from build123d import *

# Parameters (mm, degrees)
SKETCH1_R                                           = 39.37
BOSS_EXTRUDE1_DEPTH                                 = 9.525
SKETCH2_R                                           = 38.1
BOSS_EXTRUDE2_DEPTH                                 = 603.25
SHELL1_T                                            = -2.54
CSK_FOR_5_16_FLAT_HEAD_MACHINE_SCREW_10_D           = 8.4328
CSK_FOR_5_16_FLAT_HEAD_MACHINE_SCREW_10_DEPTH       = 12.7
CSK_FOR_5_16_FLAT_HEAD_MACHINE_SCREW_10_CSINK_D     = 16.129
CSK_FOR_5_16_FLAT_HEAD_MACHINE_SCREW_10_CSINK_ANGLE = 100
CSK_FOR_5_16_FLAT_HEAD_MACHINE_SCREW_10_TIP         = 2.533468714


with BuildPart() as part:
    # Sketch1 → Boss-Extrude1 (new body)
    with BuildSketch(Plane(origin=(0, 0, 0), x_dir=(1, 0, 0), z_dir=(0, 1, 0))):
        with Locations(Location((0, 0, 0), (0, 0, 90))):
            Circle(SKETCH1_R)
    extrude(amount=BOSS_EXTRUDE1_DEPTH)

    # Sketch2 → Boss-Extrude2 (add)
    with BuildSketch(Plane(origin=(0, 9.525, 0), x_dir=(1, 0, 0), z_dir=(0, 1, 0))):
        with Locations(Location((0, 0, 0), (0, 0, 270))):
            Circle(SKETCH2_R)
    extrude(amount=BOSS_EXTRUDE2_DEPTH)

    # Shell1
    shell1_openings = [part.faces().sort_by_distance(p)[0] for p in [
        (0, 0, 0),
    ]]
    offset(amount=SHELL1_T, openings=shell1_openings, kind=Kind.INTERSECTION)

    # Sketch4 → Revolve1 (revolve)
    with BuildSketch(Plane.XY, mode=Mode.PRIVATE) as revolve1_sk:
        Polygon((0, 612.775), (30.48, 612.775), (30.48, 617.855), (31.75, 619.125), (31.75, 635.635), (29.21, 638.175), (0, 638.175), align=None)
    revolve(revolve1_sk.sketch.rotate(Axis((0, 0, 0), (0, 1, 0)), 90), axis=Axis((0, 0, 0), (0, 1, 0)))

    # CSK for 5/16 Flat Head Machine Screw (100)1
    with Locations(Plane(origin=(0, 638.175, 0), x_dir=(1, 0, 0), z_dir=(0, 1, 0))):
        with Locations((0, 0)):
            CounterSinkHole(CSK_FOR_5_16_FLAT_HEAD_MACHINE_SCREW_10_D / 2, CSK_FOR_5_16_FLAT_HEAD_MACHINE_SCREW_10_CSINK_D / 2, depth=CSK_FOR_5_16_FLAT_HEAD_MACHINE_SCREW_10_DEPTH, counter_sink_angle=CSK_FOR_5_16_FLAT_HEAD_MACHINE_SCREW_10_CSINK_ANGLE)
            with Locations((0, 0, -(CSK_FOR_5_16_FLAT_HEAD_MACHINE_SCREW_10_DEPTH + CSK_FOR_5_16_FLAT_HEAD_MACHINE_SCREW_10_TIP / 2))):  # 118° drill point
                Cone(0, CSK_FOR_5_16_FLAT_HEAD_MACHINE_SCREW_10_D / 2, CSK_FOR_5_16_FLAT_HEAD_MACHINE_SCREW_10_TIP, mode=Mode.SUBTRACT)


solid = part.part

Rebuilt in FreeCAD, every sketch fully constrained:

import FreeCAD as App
import Part
import Sketcher
from FreeCAD import Vector
Q = App.Units.Quantity


def faces_at(feature, points):
    """Names of the faces that lie closest to the given points."""
    faces = feature.Shape.Faces
    near = lambda p: min(range(len(faces)), key=lambda i: faces[i].distToShape(Part.Vertex(*p))[0])
    return sorted({f"Face{near(p) + 1}" for p in points})


def add_polygon(sketch, points):
    """Adds a closed chain of lines whose ends are joined by coincident constraints."""
    first, n = sketch.GeometryCount, len(points)
    for a, b in zip(points, points[1:] + points[:1]):
        sketch.addGeometry(Part.LineSegment(App.Vector(*a, 0), App.Vector(*b, 0)), False)
    for i in range(n):
        sketch.addConstraint(Sketcher.Constraint("Coincident", first + i, 2, first + (i + 1) % n, 1))

doc = App.newDocument("Part")
body = doc.addObject("PartDesign::Body", "Body")

# Sketch on XZ plane
sketch1 = doc.addObject("Sketcher::SketchObject", "Sketch")
body.addObject(sketch1)
sketch1.AttachmentSupport = (doc.XZ_Plane, [""])
sketch1.MapMode = "FlatFace"
sketch1.addGeometry(Part.Circle(Vector(0, 0, 0), Vector(0, 0, 1), 39), False)
sketch1.addConstraint([
    Sketcher.Constraint("Coincident", 0, 3, -1, 1),
    Sketcher.Constraint("Diameter", 0, Q("3.1 in")),
])
pad1 = doc.addObject("PartDesign::Pad", "Pad")
body.addObject(pad1)
pad1.Profile = sketch1
pad1.Length = Q("0.375 in")
pad1.Reversed = True

# Sketch on XZ plane
sketch2 = doc.addObject("Sketcher::SketchObject", "Sketch001")
body.addObject(sketch2)
sketch2.AttachmentSupport = (doc.XZ_Plane, [""])
sketch2.MapMode = "FlatFace"
sketch2.AttachmentOffset = App.Placement(Vector(0, 0, -0.375 * 25.4), App.Rotation())
sketch2.addGeometry(Part.Circle(Vector(0, 0, 0), Vector(0, 0, 1), 38), False)
sketch2.addConstraint([
    Sketcher.Constraint("Coincident", 0, 3, -1, 1),
    Sketcher.Constraint("Diameter", 0, Q("3 in")),
])
pad2 = doc.addObject("PartDesign::Pad", "Pad001")
body.addObject(pad2)
pad2.Profile = sketch2
pad2.Length = Q("23.75 in")
pad2.Reversed = True
doc.recompute()

thickness = doc.addObject("PartDesign::Thickness", "Thickness")
body.addObject(thickness)
thickness.Base = (pad2, faces_at(pad2, [(0, 0, 0)]))
thickness.Value = Q("0.1 in")
thickness.Reversed = True
thickness.Join = "Intersection"

# Sketch on XY plane
sketch3 = doc.addObject("Sketcher::SketchObject", "Sketch002")
body.addObject(sketch3)
sketch3.AttachmentSupport = (doc.XY_Plane, [""])
sketch3.MapMode = "FlatFace"
add_polygon(sketch3, [(0, 612.8), (30.5, 612.8), (30.5, 617.9), (31.8, 619.1), (31.8, 635.6), (29.2, 638.2), (0, 638.2)])  # lines 0-6
sketch3.addConstraint([
    Sketcher.Constraint("Horizontal", 0),
    Sketcher.Constraint("Vertical", 1),
    Sketcher.Constraint("Vertical", 3),
    Sketcher.Constraint("Horizontal", 5),
    Sketcher.Constraint("Vertical", 6),
    Sketcher.Constraint("PointOnObject", 5, 2, -2),
    Sketcher.Constraint("Perpendicular", 2, 4),
    Sketcher.Constraint("DistanceY", 6, 2, 6, 1, Q("1 in")),
    Sketcher.Constraint("DistanceX", 0, 1, 0, 2, Q("1.2 in")),
    Sketcher.Constraint("DistanceY", 1, 1, 1, 2, Q("0.2 in")),
    Sketcher.Constraint("Angle", 2, Q("45 deg")),
    Sketcher.Constraint("DistanceX", 5, 2, 5, 1, Q("1.15 in")),
    Sketcher.Constraint("DistanceY", 3, 1, 3, 2, Q("0.65 in")),
    Sketcher.Constraint("DistanceY", -1, 1, 0, 2, Q("24.125 in")),
])
revolution = doc.addObject("PartDesign::Revolution", "Revolution")
body.addObject(revolution)
revolution.Profile = sketch3
revolution.ReferenceAxis = (sketch3, ["V_Axis"])
revolution.Angle = 360

# Sketch on XZ plane
sketch4 = doc.addObject("Sketcher::SketchObject", "Sketch003")
body.addObject(sketch4)
sketch4.AttachmentSupport = (doc.XZ_Plane, [""])
sketch4.MapMode = "FlatFace"
sketch4.AttachmentOffset = App.Placement(Vector(0, 0, -25.125 * 25.4), App.Rotation())
sketch4.addGeometry(Part.Circle(Vector(0, 0, 0), Vector(0, 0, 1), 4.2), False)
sketch4.addConstraint([
    Sketcher.Constraint("Coincident", 0, 3, -1, 1),
    Sketcher.Constraint("Diameter", 0, Q("0.332 in")),
])
doc.recompute()
hole = doc.addObject("PartDesign::Hole", "Hole")
body.addObject(hole)
hole.Profile = sketch4
hole.ThreadType = "None"
hole.Diameter = Q("0.332 in")
hole.DepthType = "Dimension"
hole.Depth = Q("0.5 in")
hole.DrillPoint = "Angled"
hole.DrillPointAngle = 118
hole.HoleCutType = "Countersink"
hole.HoleCutDiameter = Q("0.635 in")
hole.HoleCutCountersinkAngle = 100
hole.Reversed = True

doc.recompute()
